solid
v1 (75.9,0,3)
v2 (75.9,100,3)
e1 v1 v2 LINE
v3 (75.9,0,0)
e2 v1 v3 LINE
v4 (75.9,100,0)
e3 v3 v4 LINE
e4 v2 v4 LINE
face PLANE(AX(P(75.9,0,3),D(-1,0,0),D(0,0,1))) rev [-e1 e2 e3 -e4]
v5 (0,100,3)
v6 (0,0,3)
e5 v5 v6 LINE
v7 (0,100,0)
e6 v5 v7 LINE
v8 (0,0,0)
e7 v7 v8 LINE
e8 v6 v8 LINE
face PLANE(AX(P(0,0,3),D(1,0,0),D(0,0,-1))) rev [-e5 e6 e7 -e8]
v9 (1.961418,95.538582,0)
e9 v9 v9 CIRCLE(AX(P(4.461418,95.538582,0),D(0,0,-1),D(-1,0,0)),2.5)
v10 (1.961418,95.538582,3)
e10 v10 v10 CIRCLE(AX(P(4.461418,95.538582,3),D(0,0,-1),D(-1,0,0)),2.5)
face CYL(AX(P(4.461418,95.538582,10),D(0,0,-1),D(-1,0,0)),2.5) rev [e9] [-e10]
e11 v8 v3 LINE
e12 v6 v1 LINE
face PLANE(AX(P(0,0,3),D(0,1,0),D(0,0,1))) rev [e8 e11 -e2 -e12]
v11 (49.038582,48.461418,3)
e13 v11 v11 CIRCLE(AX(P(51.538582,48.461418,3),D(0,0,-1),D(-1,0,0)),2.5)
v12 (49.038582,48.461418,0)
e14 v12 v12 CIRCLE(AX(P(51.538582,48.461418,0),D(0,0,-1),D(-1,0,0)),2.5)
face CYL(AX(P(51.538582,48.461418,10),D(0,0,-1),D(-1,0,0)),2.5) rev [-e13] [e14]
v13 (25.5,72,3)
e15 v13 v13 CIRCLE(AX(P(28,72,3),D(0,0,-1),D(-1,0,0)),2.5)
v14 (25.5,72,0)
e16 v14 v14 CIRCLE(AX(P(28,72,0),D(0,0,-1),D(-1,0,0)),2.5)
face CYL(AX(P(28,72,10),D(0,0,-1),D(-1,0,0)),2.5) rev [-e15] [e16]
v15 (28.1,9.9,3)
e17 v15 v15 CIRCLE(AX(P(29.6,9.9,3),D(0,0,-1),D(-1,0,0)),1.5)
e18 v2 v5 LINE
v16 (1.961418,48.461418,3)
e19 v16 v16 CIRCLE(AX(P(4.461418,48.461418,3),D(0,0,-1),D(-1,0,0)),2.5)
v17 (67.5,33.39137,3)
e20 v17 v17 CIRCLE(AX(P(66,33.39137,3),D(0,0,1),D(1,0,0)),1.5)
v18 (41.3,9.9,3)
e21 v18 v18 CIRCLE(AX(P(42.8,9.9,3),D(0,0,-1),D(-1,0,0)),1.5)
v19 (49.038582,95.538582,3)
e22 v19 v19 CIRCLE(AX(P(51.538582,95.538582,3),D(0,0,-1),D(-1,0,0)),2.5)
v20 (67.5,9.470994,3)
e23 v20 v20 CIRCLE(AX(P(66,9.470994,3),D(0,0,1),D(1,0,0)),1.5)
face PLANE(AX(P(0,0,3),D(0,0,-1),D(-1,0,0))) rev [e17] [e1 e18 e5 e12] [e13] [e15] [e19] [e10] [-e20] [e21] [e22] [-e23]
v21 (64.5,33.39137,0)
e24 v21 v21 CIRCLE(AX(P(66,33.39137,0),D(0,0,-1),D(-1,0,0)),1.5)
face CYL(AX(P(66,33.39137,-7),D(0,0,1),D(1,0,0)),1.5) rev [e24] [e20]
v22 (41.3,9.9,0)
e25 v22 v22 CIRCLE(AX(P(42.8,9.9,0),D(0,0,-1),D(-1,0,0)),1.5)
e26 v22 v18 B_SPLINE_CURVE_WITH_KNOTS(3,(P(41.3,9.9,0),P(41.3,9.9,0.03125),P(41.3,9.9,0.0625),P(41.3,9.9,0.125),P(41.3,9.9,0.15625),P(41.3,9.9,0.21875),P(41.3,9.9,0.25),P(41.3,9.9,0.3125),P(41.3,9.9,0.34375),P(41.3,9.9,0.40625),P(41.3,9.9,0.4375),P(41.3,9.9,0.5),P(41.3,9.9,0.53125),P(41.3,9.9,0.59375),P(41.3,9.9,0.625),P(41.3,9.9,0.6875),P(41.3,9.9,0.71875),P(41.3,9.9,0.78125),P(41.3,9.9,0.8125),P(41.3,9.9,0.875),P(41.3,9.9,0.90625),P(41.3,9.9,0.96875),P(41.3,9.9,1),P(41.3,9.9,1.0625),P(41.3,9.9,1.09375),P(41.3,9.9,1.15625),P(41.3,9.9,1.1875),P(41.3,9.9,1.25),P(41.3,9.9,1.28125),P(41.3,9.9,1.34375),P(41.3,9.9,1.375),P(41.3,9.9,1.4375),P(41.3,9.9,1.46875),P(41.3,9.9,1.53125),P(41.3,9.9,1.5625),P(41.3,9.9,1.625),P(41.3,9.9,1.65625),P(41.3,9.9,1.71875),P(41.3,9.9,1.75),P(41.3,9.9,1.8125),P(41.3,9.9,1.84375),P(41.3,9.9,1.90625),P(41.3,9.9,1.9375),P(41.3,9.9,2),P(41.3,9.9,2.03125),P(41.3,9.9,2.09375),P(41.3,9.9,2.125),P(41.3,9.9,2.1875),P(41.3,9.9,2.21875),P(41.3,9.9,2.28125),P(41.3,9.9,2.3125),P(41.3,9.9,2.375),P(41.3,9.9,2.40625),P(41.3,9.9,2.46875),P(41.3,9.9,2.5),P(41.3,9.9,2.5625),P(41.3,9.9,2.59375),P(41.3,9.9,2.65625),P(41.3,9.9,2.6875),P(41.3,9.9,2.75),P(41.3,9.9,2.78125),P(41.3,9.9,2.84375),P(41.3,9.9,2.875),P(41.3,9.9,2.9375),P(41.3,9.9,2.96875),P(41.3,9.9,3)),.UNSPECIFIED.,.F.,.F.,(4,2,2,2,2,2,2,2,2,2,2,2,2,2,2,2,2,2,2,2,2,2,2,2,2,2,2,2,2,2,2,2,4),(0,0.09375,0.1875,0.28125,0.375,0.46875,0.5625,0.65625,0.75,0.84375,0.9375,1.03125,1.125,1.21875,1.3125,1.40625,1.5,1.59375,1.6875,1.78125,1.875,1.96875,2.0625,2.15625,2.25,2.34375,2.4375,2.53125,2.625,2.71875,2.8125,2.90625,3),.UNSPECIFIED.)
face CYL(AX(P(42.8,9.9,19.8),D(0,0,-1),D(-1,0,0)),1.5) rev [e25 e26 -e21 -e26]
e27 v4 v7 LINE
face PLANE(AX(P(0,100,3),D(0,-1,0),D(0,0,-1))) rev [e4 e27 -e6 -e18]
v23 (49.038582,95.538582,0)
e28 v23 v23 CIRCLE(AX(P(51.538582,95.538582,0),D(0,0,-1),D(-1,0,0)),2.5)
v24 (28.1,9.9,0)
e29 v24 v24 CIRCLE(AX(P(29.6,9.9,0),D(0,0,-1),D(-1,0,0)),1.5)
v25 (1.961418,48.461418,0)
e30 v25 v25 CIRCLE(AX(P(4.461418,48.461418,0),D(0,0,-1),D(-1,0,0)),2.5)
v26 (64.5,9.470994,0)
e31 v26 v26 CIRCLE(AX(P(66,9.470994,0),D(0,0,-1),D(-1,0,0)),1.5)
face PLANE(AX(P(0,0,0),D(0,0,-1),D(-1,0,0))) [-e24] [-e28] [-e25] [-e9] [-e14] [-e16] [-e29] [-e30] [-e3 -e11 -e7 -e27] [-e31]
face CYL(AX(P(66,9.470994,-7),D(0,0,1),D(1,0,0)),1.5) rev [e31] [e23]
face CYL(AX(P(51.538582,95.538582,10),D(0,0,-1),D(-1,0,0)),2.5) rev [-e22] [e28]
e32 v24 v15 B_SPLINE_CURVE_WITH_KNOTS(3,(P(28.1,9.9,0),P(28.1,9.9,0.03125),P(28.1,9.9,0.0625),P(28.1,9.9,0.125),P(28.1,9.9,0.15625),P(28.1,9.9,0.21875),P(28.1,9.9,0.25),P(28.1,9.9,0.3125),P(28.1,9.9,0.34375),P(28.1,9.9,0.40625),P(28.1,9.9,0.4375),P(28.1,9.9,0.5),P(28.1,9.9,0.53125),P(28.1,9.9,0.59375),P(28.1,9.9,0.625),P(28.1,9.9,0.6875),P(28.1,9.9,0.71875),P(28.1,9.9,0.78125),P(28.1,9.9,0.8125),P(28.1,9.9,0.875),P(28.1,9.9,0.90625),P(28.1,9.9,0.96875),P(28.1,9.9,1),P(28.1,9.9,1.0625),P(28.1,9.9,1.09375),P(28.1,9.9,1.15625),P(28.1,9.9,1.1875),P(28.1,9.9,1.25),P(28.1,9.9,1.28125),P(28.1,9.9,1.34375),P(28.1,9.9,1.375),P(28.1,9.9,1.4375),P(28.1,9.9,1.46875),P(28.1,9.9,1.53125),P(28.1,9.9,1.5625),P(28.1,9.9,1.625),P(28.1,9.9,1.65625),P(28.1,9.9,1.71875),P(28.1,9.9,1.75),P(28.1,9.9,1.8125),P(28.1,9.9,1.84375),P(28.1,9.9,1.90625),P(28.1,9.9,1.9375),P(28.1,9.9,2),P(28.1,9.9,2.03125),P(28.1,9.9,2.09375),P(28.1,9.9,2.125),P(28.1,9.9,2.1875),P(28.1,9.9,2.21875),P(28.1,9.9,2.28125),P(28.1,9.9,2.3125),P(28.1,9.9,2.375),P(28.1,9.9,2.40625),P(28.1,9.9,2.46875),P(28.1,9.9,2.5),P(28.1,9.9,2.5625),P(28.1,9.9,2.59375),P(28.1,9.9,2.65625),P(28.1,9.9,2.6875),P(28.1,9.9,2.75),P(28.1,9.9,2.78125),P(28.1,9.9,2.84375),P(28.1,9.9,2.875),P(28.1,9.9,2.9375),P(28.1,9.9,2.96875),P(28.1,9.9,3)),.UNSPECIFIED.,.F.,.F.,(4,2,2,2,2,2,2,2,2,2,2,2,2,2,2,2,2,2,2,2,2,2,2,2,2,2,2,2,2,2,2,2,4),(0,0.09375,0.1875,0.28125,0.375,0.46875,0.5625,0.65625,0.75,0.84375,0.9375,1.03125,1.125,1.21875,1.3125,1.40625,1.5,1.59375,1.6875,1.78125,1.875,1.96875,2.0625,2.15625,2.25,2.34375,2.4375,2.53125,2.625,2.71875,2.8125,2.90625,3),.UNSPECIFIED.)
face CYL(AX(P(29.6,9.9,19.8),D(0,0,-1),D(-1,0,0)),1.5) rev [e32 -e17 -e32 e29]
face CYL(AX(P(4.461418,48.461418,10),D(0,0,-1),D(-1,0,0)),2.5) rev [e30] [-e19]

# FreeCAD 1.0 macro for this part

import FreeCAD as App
import Part
import Sketcher
Q = App.Units.Quantity


def add_polygon(sketch, points):
    """Adds a closed chain of lines whose ends are joined by coincident constraints."""
    first, n = sketch.GeometryCount, len(points)
    for a, b in zip(points, points[1:] + points[:1]):
        sketch.addGeometry(Part.LineSegment(App.Vector(*a, 0), App.Vector(*b, 0)), False)
    for i in range(n):
        sketch.addConstraint(Sketcher.Constraint("Coincident", first + i, 2, first + (i + 1) % n, 1))

doc = App.newDocument("Part")
body = doc.addObject("PartDesign::Body", "Body")

sketch1 = doc.addObject("Sketcher::SketchObject", "Sketch")
body.addObject(sketch1)
sketch1.AttachmentSupport = (doc.XY_Plane, [""])
sketch1.MapMode = "FlatFace"
add_polygon(sketch1, [(0, 100), (0, 0), (76, 0), (76, 100)])
sketch1.addConstraint([
    Sketcher.Constraint("Vertical", 0),
    Sketcher.Constraint("Horizontal", 1),
    Sketcher.Constraint("Vertical", 2),
    Sketcher.Constraint("Horizontal", 3),
    Sketcher.Constraint("Coincident", 0, 2, -1, 1),
    Sketcher.Constraint("DistanceY", 0, 2, 0, 1, Q("100 mm")),
    Sketcher.Constraint("DistanceX", 1, 1, 1, 2, Q("75.9 mm")),
])
pad1 = doc.addObject("PartDesign::Pad", "Pad")
body.addObject(pad1)
pad1.Profile = sketch1
pad1.Length = 3

sketch2 = doc.addObject("Sketcher::SketchObject", "Sketch001")
body.addObject(sketch2)
sketch2.AttachmentSupport = (doc.XY_Plane, [""])
sketch2.MapMode = "FlatFace"
sketch2.addGeometry([
    Part.Circle(App.Vector(51.5, 95.5, 0), App.Vector(0, 0, 1), 2.5),
    Part.Circle(App.Vector(4.5, 95.5, 0), App.Vector(0, 0, 1), 2.5),
    Part.Circle(App.Vector(4.5, 48.5, 0), App.Vector(0, 0, 1), 2.5),
    Part.Circle(App.Vector(51.5, 48.5, 0), App.Vector(0, 0, 1), 2.5),
], False)
sketch2.addConstraint([
    Sketcher.Constraint("Equal", 0, 1),
    Sketcher.Constraint("Equal", 1, 2),
    Sketcher.Constraint("Equal", 2, 3),
    Sketcher.Constraint("Horizontal", 0, 3, 1, 3),
    Sketcher.Constraint("Horizontal", 2, 3, 3, 3),
    Sketcher.Constraint("Vertical", 1, 3, 2, 3),
    Sketcher.Constraint("Vertical", 0, 3, 3, 3),
    Sketcher.Constraint("Diameter", 0, Q("5 mm")),
    Sketcher.Constraint("DistanceX", -1, 1, 0, 3, Q("51.538582 mm")),
    Sketcher.Constraint("DistanceY", -1, 1, 0, 3, Q("95.538582 mm")),
    Sketcher.Constraint("DistanceX", -1, 1, 1, 3, Q("4.461418 mm")),
    Sketcher.Constraint("DistanceY", -1, 1, 2, 3, Q("48.461418 mm")),
])
pocket1 = doc.addObject("PartDesign::Pocket", "Pocket")
body.addObject(pocket1)
pocket1.Profile = sketch2
pocket1.Length = 10
pocket1.Reversed = True

sketch3 = doc.addObject("Sketcher::SketchObject", "Sketch002")
body.addObject(sketch3)
sketch3.AttachmentSupport = (doc.XY_Plane, [""])
sketch3.MapMode = "FlatFace"
sketch3.AttachmentOffset = App.Placement(App.Vector(0, 0, 3), App.Rotation())
sketch3.addGeometry([
    Part.Circle(App.Vector(66, 33.4, 0), App.Vector(0, 0, 1), 1.5),
    Part.Circle(App.Vector(66, 9.5, 0), App.Vector(0, 0, 1), 1.5),
], False)
sketch3.addConstraint([
    Sketcher.Constraint("Equal", 0, 1),
    Sketcher.Constraint("Vertical", 0, 3, 1, 3),
    Sketcher.Constraint("Diameter", 0, Q("3 mm")),
    Sketcher.Constraint("DistanceX", -1, 1, 0, 3, Q("66 mm")),
    Sketcher.Constraint("DistanceY", -1, 1, 0, 3, Q("33.39137 mm")),
    Sketcher.Constraint("DistanceY", -1, 1, 1, 3, Q("9.470994 mm")),
])
pocket2 = doc.addObject("PartDesign::Pocket", "Pocket001")
body.addObject(pocket2)
pocket2.Profile = sketch3
pocket2.Length = 10

sketch4 = doc.addObject("Sketcher::SketchObject", "Sketch003")
body.addObject(sketch4)
sketch4.AttachmentSupport = (doc.XY_Plane, [""])
sketch4.MapMode = "FlatFace"
sketch4.addGeometry([
    Part.Circle(App.Vector(29.6, 9.9, 0), App.Vector(0, 0, 1), 1.5),
    Part.Circle(App.Vector(42.8, 9.9, 0), App.Vector(0, 0, 1), 1.5),
], False)
sketch4.addConstraint([
    Sketcher.Constraint("Equal", 0, 1),
    Sketcher.Constraint("Horizontal", 0, 3, 1, 3),
    Sketcher.Constraint("Diameter", 0, Q("3 mm")),
    Sketcher.Constraint("DistanceX", -1, 1, 0, 3, Q("29.6 mm")),
    Sketcher.Constraint("DistanceY", -1, 1, 0, 3, Q("9.9 mm")),
    Sketcher.Constraint("DistanceX", -1, 1, 1, 3, Q("42.8 mm")),
])
pocket3 = doc.addObject("PartDesign::Pocket", "Pocket002")
body.addObject(pocket3)
pocket3.Profile = sketch4
pocket3.Length = 19.8
pocket3.Reversed = True

sketch5 = doc.addObject("Sketcher::SketchObject", "Sketch004")
body.addObject(sketch5)
sketch5.AttachmentSupport = (doc.XY_Plane, [""])
sketch5.MapMode = "FlatFace"
sketch5.addGeometry(Part.Circle(App.Vector(28, 72, 0), App.Vector(0, 0, 1), 2.5), False)
sketch5.addConstraint([
    Sketcher.Constraint("Diameter", 0, Q("5 mm")),
    Sketcher.Constraint("DistanceX", -1, 1, 0, 3, Q("28 mm")),
    Sketcher.Constraint("DistanceY", -1, 1, 0, 3, Q("72 mm")),
])
pocket4 = doc.addObject("PartDesign::Pocket", "Pocket003")
body.addObject(pocket4)
pocket4.Profile = sketch5
pocket4.Length = 10
pocket4.Reversed = True

doc.recompute()
